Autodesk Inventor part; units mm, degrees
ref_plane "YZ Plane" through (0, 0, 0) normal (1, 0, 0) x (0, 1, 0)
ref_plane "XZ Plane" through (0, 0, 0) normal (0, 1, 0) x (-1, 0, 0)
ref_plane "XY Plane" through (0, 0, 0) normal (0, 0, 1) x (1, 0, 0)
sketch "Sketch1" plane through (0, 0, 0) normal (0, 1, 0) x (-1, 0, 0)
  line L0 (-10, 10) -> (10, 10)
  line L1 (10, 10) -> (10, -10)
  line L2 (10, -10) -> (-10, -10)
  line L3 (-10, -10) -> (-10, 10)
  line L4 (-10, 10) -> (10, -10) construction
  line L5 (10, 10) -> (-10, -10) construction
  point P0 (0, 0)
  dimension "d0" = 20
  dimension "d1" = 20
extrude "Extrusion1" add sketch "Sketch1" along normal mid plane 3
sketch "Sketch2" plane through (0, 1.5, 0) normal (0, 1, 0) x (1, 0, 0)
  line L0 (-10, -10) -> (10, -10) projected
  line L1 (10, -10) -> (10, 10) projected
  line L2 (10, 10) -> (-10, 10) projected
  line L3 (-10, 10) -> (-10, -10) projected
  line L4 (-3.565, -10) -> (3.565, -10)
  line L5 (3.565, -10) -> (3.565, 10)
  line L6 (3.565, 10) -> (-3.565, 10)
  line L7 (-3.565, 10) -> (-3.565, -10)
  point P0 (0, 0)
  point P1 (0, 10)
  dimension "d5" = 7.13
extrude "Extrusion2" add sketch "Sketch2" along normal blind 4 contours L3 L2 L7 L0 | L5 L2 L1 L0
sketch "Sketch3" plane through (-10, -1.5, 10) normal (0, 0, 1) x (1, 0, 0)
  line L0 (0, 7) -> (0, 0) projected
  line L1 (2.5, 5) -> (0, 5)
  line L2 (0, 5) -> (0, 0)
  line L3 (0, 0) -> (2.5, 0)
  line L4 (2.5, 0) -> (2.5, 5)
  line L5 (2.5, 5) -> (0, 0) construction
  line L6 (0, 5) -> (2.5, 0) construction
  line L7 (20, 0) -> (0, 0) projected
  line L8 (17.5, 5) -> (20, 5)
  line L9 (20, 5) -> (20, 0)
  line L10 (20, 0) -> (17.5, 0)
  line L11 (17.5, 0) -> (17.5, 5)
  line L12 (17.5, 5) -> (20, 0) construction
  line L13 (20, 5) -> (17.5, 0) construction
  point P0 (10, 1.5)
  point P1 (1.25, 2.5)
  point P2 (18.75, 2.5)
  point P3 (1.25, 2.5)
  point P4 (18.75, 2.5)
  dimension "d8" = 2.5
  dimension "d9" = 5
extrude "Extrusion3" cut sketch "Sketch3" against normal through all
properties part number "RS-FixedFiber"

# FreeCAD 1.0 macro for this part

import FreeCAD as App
import Part
import Sketcher
from FreeCAD import Vector


def add_polygon(sketch, points):
    """Adds a closed chain of lines whose ends are joined by coincident constraints."""
    first, n = sketch.GeometryCount, len(points)
    for a, b in zip(points, points[1:] + points[:1]):
        sketch.addGeometry(Part.LineSegment(App.Vector(*a, 0), App.Vector(*b, 0)), False)
    for i in range(n):
        sketch.addConstraint(Sketcher.Constraint("Coincident", first + i, 2, first + (i + 1) % n, 1))

doc = App.newDocument("Part")
body = doc.addObject("PartDesign::Body", "Body")

# Sketch on XZ plane
sketch1 = doc.addObject("Sketcher::SketchObject", "Sketch")
body.addObject(sketch1)
sketch1.AttachmentSupport = (doc.XZ_Plane, [""])
sketch1.MapMode = "FlatFace"
add_polygon(sketch1, [(-10, 10), (10, 10), (10, -10), (-10, -10)])  # lines 0-3
sketch1.addConstraint([
    Sketcher.Constraint("Horizontal", 0),
    Sketcher.Constraint("Vertical", 1),
    Sketcher.Constraint("Horizontal", 2),
    Sketcher.Constraint("Vertical", 3),
    Sketcher.Constraint("Symmetric", 0, 2, 2, 2, -1, 1),
    Sketcher.Constraint("Equal", 2, 1),
    Sketcher.Constraint("DistanceX", 0, 1, 0, 2, 20.0),
])
pad1 = doc.addObject("PartDesign::Pad", "Pad")
body.addObject(pad1)
pad1.Profile = sketch1
pad1.Length = 3
pad1.Midplane = True

# Sketch on XZ plane
sketch2 = doc.addObject("Sketcher::SketchObject", "Sketch001")
body.addObject(sketch2)
sketch2.AttachmentSupport = (doc.XZ_Plane, [""])
sketch2.MapMode = "FlatFace"
sketch2.AttachmentOffset = App.Placement(Vector(0, 0, -1.5), App.Rotation())
add_polygon(sketch2, [(-10, -10), (-10, 10), (-4, 10), (-4, -10)])  # lines 0-3
add_polygon(sketch2, [(4, -10), (4, 10), (10, 10), (10, -10)])  # lines 4-7
sketch2.addConstraint([
    Sketcher.Constraint("Vertical", 0),
    Sketcher.Constraint("Horizontal", 1),
    Sketcher.Constraint("Vertical", 2),
    Sketcher.Constraint("Horizontal", 3),
    Sketcher.Constraint("Vertical", 4),
    Sketcher.Constraint("Horizontal", 5),
    Sketcher.Constraint("Vertical", 6),
    Sketcher.Constraint("Horizontal", 7),
    Sketcher.Constraint("Symmetric", 2, 2, 4, 2, -1, 1),
    Sketcher.Constraint("Symmetric", 0, 2, 6, 2, -1, 1),
    Sketcher.Constraint("Horizontal", 1, 2, 4, 2),
    Sketcher.Constraint("DistanceY", 0, 1, 0, 2, 20.0),
    Sketcher.Constraint("DistanceX", 1, 2, 4, 2, 7.13),
    Sketcher.Constraint("DistanceX", 0, 2, -1, 1, 10.0),
])
pad2 = doc.addObject("PartDesign::Pad", "Pad001")
body.addObject(pad2)
pad2.Profile = sketch2
pad2.Length = 4
pad2.Reversed = True

# Sketch on XY plane
sketch3 = doc.addObject("Sketcher::SketchObject", "Sketch002")
body.addObject(sketch3)
sketch3.AttachmentSupport = (doc.XY_Plane, [""])
sketch3.MapMode = "FlatFace"
sketch3.AttachmentOffset = App.Placement(Vector(0, 0, 10), App.Rotation())
add_polygon(sketch3, [(-7.5, 3.5), (-10, 3.5), (-10, -1.5), (-7.5, -1.5)])  # lines 0-3
add_polygon(sketch3, [(7.5, 3.5), (7.5, -1.5), (10, -1.5), (10, 3.5)])  # lines 4-7
sketch3.addConstraint([
    Sketcher.Constraint("Horizontal", 0),
    Sketcher.Constraint("Vertical", 1),
    Sketcher.Constraint("Horizontal", 2),
    Sketcher.Constraint("Vertical", 3),
    Sketcher.Constraint("Vertical", 4),
    Sketcher.Constraint("Horizontal", 5),
    Sketcher.Constraint("Vertical", 6),
    Sketcher.Constraint("Horizontal", 7),
    Sketcher.Constraint("Symmetric", 2, 2, 4, 2, -2),
    Sketcher.Constraint("Symmetric", 0, 2, 6, 2, -2),
    Sketcher.Constraint("DistanceY", 1, 2, 1, 1, 5.0),
    Sketcher.Constraint("DistanceX", 0, 2, 0, 1, 2.5),
    Sketcher.Constraint("DistanceX", 0, 2, -1, 1, 10.0),
    Sketcher.Constraint("DistanceY", -1, 1, 0, 2, 3.5),
])
pocket1 = doc.addObject("PartDesign::Pocket", "Pocket")
body.addObject(pocket1)
pocket1.Profile = sketch3
pocket1.Type = "ThroughAll"

doc.recompute()
